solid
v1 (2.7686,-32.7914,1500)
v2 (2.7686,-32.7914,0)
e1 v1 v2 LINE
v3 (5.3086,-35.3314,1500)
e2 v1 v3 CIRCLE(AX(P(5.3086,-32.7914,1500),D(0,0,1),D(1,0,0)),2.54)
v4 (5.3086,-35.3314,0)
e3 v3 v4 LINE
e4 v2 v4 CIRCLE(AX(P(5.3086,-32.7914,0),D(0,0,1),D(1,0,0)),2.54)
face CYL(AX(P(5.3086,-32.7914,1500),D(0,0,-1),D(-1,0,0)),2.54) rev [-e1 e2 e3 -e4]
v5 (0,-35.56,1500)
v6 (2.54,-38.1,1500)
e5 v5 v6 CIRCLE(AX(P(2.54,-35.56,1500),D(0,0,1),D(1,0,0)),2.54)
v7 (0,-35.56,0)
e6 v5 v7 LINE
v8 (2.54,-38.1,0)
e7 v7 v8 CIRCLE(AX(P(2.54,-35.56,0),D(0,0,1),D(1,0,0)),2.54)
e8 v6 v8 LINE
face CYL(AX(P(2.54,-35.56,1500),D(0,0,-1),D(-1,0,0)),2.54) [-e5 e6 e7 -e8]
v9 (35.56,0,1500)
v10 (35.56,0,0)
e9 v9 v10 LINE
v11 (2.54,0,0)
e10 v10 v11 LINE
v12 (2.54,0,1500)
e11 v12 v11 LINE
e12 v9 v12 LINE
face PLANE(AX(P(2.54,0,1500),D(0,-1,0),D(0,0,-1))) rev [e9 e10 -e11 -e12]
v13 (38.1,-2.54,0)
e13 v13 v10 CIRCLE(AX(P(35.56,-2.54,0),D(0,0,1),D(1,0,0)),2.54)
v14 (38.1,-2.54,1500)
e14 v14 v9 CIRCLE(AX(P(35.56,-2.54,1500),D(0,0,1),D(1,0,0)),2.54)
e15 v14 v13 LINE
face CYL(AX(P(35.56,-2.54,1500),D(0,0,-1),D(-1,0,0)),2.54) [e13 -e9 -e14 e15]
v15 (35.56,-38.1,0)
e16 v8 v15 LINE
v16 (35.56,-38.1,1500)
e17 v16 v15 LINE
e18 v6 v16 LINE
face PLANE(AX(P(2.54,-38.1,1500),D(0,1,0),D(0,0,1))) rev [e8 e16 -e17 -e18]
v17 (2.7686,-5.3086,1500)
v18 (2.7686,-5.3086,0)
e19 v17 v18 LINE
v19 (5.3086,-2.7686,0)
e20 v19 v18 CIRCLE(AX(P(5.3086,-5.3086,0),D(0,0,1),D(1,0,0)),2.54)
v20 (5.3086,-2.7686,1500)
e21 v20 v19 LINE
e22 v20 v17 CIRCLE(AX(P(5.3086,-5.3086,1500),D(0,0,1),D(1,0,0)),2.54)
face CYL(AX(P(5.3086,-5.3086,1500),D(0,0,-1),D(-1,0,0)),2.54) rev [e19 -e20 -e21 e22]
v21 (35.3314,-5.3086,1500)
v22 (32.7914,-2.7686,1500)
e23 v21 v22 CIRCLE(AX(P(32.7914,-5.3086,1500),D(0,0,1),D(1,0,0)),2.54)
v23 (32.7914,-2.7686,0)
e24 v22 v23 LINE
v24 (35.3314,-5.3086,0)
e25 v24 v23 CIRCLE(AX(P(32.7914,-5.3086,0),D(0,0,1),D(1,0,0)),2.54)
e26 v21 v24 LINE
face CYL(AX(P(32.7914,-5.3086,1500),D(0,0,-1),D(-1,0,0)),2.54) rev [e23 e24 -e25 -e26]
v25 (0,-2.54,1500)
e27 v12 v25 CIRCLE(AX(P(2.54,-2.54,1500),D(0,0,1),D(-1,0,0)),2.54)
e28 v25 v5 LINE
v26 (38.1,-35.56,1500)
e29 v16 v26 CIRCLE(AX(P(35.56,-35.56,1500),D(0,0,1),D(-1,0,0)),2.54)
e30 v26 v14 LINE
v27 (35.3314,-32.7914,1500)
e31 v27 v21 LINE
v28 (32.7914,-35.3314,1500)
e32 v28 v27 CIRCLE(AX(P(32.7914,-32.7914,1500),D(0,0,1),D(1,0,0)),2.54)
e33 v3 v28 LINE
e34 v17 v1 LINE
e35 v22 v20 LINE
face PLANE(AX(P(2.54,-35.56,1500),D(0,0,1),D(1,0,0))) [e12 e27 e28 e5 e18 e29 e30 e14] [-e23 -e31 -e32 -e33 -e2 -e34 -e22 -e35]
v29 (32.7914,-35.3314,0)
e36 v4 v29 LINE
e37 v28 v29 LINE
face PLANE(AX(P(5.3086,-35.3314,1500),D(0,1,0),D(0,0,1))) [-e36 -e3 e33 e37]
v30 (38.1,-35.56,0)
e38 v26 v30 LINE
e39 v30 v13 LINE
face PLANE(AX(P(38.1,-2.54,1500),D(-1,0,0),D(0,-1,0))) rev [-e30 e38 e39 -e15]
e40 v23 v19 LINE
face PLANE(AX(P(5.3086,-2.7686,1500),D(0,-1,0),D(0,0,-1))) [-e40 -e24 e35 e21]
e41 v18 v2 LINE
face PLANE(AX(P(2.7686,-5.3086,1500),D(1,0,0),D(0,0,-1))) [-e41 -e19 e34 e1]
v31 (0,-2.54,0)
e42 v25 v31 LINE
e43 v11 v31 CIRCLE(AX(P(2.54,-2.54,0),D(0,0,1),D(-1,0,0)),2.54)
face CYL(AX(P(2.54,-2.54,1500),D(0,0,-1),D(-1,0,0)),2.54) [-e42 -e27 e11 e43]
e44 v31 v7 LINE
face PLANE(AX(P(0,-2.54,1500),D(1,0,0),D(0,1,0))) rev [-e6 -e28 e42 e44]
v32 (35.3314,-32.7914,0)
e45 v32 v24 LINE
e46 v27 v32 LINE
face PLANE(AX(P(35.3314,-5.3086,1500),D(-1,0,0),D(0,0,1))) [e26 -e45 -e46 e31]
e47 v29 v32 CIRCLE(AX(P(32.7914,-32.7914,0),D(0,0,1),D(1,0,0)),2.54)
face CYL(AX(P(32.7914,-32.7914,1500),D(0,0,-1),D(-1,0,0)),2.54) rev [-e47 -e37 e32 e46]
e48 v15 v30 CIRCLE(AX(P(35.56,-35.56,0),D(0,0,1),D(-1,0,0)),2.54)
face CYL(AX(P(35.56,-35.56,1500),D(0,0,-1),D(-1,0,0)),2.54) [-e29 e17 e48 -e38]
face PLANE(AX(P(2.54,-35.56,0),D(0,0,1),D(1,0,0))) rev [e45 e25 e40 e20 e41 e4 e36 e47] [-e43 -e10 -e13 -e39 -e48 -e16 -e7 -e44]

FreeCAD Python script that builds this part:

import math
import FreeCAD as App
import Part
import Sketcher

V = App.Vector
Q = App.Units.Quantity

doc = App.newDocument("Part")
body = doc.addObject("PartDesign::Body", "Body")

# Sketch on XY plane
sketch1 = doc.addObject("Sketcher::SketchObject", "Sketch")
body.addObject(sketch1)
sketch1.AttachmentSupport = (doc.XY_Plane, [""])
sketch1.MapMode = "FlatFace"
sketch1.addGeometry([
    Part.LineSegment(V(35.56, 0, 0), V(2.54, 0, 0)),  # 0
    Part.ArcOfCircle(Part.Circle(V(2.54, -2.54, 0), V(0, 0, 1), 2.54), math.radians(90), math.radians(180)),  # 1
    Part.LineSegment(V(0, -2.54, 0), V(0, -35.56, 0)),  # 2
    Part.ArcOfCircle(Part.Circle(V(2.54, -35.56, 0), V(0, 0, 1), 2.54), math.radians(-180), math.radians(-90)),  # 3
    Part.LineSegment(V(2.54, -38.1, 0), V(35.56, -38.1, 0)),  # 4
    Part.ArcOfCircle(Part.Circle(V(35.56, -35.56, 0), V(0, 0, 1), 2.54), math.radians(-90), math.radians(0)),  # 5
    Part.LineSegment(V(38.1, -35.56, 0), V(38.1, -2.54, 0)),  # 6
    Part.ArcOfCircle(Part.Circle(V(35.56, -2.54, 0), V(0, 0, 1), 2.54), math.radians(0), math.radians(90)),  # 7
    Part.LineSegment(V(5.3086, -2.7686, 0), V(32.7914, -2.7686, 0)),  # 8
    Part.ArcOfCircle(Part.Circle(V(32.7914, -5.3086, 0), V(0, 0, 1), 2.54), math.radians(0), math.radians(90)),  # 9
    Part.LineSegment(V(35.3314, -5.3086, 0), V(35.3314, -32.7914, 0)),  # 10
    Part.ArcOfCircle(Part.Circle(V(32.7914, -32.7914, 0), V(0, 0, 1), 2.54), math.radians(-90), math.radians(0)),  # 11
    Part.LineSegment(V(32.7914, -35.3314, 0), V(5.3086, -35.3314, 0)),  # 12
    Part.ArcOfCircle(Part.Circle(V(5.3086, -32.7914, 0), V(0, 0, 1), 2.54), math.radians(-180), math.radians(-90)),  # 13
    Part.LineSegment(V(2.7686, -32.7914, 0), V(2.7686, -5.3086, 0)),  # 14
    Part.ArcOfCircle(Part.Circle(V(5.3086, -5.3086, 0), V(0, 0, 1), 2.54), math.radians(90), math.radians(180)),  # 15
], False)
sketch1.addConstraint([
    Sketcher.Constraint("Tangent", 0, 2, 1, 1),
    Sketcher.Constraint("Tangent", 1, 2, 2, 1),
    Sketcher.Constraint("Tangent", 2, 2, 3, 1),
    Sketcher.Constraint("Tangent", 3, 2, 4, 1),
    Sketcher.Constraint("Tangent", 4, 2, 5, 1),
    Sketcher.Constraint("Tangent", 5, 2, 6, 1),
    Sketcher.Constraint("Tangent", 6, 2, 7, 1),
    Sketcher.Constraint("Tangent", 7, 2, 0, 1),
    Sketcher.Constraint("Tangent", 8, 2, 9, 2),
    Sketcher.Constraint("Tangent", 9, 1, 10, 1),
    Sketcher.Constraint("Tangent", 10, 2, 11, 2),
    Sketcher.Constraint("Tangent", 11, 1, 12, 1),
    Sketcher.Constraint("Tangent", 12, 2, 13, 2),
    Sketcher.Constraint("Tangent", 13, 1, 14, 1),
    Sketcher.Constraint("Tangent", 14, 2, 15, 2),
    Sketcher.Constraint("Tangent", 15, 1, 8, 1),
    Sketcher.Constraint("Horizontal", 0),
    Sketcher.Constraint("Vertical", 2),
    Sketcher.Constraint("Horizontal", 4),
    Sketcher.Constraint("Vertical", 6),
    Sketcher.Constraint("Horizontal", 8),
    Sketcher.Constraint("Vertical", 10),
    Sketcher.Constraint("Horizontal", 12),
    Sketcher.Constraint("Vertical", 14),
    Sketcher.Constraint("Equal", 1, 3),
    Sketcher.Constraint("Equal", 3, 5),
    Sketcher.Constraint("Equal", 5, 7),
    Sketcher.Constraint("Equal", 7, 9),
    Sketcher.Constraint("Equal", 9, 11),
    Sketcher.Constraint("Equal", 11, 13),
    Sketcher.Constraint("Equal", 13, 15),
    Sketcher.Constraint("PointOnObject", 0, 2, -1),
    Sketcher.Constraint("PointOnObject", 1, 2, -2),
    Sketcher.Constraint("Equal", 4, 2),
    Sketcher.Constraint("Equal", 12, 10),
    Sketcher.Constraint("Radius", 1, Q("0.1 in")),
    Sketcher.Constraint("DistanceX", 0, 2, 0, 1, Q("1.3 in")),
    Sketcher.Constraint("DistanceX", 8, 1, 8, 2, Q("1.082 in")),
    Sketcher.Constraint("DistanceX", -1, 1, 9, 3, Q("1.291 in")),
    Sketcher.Constraint("DistanceY", 9, 3, -1, 1, Q("0.209 in")),
])
pad1 = doc.addObject("PartDesign::Pad", "Pad")
body.addObject(pad1)
pad1.Profile = sketch1
pad1.Length = 1500

doc.recompute()
